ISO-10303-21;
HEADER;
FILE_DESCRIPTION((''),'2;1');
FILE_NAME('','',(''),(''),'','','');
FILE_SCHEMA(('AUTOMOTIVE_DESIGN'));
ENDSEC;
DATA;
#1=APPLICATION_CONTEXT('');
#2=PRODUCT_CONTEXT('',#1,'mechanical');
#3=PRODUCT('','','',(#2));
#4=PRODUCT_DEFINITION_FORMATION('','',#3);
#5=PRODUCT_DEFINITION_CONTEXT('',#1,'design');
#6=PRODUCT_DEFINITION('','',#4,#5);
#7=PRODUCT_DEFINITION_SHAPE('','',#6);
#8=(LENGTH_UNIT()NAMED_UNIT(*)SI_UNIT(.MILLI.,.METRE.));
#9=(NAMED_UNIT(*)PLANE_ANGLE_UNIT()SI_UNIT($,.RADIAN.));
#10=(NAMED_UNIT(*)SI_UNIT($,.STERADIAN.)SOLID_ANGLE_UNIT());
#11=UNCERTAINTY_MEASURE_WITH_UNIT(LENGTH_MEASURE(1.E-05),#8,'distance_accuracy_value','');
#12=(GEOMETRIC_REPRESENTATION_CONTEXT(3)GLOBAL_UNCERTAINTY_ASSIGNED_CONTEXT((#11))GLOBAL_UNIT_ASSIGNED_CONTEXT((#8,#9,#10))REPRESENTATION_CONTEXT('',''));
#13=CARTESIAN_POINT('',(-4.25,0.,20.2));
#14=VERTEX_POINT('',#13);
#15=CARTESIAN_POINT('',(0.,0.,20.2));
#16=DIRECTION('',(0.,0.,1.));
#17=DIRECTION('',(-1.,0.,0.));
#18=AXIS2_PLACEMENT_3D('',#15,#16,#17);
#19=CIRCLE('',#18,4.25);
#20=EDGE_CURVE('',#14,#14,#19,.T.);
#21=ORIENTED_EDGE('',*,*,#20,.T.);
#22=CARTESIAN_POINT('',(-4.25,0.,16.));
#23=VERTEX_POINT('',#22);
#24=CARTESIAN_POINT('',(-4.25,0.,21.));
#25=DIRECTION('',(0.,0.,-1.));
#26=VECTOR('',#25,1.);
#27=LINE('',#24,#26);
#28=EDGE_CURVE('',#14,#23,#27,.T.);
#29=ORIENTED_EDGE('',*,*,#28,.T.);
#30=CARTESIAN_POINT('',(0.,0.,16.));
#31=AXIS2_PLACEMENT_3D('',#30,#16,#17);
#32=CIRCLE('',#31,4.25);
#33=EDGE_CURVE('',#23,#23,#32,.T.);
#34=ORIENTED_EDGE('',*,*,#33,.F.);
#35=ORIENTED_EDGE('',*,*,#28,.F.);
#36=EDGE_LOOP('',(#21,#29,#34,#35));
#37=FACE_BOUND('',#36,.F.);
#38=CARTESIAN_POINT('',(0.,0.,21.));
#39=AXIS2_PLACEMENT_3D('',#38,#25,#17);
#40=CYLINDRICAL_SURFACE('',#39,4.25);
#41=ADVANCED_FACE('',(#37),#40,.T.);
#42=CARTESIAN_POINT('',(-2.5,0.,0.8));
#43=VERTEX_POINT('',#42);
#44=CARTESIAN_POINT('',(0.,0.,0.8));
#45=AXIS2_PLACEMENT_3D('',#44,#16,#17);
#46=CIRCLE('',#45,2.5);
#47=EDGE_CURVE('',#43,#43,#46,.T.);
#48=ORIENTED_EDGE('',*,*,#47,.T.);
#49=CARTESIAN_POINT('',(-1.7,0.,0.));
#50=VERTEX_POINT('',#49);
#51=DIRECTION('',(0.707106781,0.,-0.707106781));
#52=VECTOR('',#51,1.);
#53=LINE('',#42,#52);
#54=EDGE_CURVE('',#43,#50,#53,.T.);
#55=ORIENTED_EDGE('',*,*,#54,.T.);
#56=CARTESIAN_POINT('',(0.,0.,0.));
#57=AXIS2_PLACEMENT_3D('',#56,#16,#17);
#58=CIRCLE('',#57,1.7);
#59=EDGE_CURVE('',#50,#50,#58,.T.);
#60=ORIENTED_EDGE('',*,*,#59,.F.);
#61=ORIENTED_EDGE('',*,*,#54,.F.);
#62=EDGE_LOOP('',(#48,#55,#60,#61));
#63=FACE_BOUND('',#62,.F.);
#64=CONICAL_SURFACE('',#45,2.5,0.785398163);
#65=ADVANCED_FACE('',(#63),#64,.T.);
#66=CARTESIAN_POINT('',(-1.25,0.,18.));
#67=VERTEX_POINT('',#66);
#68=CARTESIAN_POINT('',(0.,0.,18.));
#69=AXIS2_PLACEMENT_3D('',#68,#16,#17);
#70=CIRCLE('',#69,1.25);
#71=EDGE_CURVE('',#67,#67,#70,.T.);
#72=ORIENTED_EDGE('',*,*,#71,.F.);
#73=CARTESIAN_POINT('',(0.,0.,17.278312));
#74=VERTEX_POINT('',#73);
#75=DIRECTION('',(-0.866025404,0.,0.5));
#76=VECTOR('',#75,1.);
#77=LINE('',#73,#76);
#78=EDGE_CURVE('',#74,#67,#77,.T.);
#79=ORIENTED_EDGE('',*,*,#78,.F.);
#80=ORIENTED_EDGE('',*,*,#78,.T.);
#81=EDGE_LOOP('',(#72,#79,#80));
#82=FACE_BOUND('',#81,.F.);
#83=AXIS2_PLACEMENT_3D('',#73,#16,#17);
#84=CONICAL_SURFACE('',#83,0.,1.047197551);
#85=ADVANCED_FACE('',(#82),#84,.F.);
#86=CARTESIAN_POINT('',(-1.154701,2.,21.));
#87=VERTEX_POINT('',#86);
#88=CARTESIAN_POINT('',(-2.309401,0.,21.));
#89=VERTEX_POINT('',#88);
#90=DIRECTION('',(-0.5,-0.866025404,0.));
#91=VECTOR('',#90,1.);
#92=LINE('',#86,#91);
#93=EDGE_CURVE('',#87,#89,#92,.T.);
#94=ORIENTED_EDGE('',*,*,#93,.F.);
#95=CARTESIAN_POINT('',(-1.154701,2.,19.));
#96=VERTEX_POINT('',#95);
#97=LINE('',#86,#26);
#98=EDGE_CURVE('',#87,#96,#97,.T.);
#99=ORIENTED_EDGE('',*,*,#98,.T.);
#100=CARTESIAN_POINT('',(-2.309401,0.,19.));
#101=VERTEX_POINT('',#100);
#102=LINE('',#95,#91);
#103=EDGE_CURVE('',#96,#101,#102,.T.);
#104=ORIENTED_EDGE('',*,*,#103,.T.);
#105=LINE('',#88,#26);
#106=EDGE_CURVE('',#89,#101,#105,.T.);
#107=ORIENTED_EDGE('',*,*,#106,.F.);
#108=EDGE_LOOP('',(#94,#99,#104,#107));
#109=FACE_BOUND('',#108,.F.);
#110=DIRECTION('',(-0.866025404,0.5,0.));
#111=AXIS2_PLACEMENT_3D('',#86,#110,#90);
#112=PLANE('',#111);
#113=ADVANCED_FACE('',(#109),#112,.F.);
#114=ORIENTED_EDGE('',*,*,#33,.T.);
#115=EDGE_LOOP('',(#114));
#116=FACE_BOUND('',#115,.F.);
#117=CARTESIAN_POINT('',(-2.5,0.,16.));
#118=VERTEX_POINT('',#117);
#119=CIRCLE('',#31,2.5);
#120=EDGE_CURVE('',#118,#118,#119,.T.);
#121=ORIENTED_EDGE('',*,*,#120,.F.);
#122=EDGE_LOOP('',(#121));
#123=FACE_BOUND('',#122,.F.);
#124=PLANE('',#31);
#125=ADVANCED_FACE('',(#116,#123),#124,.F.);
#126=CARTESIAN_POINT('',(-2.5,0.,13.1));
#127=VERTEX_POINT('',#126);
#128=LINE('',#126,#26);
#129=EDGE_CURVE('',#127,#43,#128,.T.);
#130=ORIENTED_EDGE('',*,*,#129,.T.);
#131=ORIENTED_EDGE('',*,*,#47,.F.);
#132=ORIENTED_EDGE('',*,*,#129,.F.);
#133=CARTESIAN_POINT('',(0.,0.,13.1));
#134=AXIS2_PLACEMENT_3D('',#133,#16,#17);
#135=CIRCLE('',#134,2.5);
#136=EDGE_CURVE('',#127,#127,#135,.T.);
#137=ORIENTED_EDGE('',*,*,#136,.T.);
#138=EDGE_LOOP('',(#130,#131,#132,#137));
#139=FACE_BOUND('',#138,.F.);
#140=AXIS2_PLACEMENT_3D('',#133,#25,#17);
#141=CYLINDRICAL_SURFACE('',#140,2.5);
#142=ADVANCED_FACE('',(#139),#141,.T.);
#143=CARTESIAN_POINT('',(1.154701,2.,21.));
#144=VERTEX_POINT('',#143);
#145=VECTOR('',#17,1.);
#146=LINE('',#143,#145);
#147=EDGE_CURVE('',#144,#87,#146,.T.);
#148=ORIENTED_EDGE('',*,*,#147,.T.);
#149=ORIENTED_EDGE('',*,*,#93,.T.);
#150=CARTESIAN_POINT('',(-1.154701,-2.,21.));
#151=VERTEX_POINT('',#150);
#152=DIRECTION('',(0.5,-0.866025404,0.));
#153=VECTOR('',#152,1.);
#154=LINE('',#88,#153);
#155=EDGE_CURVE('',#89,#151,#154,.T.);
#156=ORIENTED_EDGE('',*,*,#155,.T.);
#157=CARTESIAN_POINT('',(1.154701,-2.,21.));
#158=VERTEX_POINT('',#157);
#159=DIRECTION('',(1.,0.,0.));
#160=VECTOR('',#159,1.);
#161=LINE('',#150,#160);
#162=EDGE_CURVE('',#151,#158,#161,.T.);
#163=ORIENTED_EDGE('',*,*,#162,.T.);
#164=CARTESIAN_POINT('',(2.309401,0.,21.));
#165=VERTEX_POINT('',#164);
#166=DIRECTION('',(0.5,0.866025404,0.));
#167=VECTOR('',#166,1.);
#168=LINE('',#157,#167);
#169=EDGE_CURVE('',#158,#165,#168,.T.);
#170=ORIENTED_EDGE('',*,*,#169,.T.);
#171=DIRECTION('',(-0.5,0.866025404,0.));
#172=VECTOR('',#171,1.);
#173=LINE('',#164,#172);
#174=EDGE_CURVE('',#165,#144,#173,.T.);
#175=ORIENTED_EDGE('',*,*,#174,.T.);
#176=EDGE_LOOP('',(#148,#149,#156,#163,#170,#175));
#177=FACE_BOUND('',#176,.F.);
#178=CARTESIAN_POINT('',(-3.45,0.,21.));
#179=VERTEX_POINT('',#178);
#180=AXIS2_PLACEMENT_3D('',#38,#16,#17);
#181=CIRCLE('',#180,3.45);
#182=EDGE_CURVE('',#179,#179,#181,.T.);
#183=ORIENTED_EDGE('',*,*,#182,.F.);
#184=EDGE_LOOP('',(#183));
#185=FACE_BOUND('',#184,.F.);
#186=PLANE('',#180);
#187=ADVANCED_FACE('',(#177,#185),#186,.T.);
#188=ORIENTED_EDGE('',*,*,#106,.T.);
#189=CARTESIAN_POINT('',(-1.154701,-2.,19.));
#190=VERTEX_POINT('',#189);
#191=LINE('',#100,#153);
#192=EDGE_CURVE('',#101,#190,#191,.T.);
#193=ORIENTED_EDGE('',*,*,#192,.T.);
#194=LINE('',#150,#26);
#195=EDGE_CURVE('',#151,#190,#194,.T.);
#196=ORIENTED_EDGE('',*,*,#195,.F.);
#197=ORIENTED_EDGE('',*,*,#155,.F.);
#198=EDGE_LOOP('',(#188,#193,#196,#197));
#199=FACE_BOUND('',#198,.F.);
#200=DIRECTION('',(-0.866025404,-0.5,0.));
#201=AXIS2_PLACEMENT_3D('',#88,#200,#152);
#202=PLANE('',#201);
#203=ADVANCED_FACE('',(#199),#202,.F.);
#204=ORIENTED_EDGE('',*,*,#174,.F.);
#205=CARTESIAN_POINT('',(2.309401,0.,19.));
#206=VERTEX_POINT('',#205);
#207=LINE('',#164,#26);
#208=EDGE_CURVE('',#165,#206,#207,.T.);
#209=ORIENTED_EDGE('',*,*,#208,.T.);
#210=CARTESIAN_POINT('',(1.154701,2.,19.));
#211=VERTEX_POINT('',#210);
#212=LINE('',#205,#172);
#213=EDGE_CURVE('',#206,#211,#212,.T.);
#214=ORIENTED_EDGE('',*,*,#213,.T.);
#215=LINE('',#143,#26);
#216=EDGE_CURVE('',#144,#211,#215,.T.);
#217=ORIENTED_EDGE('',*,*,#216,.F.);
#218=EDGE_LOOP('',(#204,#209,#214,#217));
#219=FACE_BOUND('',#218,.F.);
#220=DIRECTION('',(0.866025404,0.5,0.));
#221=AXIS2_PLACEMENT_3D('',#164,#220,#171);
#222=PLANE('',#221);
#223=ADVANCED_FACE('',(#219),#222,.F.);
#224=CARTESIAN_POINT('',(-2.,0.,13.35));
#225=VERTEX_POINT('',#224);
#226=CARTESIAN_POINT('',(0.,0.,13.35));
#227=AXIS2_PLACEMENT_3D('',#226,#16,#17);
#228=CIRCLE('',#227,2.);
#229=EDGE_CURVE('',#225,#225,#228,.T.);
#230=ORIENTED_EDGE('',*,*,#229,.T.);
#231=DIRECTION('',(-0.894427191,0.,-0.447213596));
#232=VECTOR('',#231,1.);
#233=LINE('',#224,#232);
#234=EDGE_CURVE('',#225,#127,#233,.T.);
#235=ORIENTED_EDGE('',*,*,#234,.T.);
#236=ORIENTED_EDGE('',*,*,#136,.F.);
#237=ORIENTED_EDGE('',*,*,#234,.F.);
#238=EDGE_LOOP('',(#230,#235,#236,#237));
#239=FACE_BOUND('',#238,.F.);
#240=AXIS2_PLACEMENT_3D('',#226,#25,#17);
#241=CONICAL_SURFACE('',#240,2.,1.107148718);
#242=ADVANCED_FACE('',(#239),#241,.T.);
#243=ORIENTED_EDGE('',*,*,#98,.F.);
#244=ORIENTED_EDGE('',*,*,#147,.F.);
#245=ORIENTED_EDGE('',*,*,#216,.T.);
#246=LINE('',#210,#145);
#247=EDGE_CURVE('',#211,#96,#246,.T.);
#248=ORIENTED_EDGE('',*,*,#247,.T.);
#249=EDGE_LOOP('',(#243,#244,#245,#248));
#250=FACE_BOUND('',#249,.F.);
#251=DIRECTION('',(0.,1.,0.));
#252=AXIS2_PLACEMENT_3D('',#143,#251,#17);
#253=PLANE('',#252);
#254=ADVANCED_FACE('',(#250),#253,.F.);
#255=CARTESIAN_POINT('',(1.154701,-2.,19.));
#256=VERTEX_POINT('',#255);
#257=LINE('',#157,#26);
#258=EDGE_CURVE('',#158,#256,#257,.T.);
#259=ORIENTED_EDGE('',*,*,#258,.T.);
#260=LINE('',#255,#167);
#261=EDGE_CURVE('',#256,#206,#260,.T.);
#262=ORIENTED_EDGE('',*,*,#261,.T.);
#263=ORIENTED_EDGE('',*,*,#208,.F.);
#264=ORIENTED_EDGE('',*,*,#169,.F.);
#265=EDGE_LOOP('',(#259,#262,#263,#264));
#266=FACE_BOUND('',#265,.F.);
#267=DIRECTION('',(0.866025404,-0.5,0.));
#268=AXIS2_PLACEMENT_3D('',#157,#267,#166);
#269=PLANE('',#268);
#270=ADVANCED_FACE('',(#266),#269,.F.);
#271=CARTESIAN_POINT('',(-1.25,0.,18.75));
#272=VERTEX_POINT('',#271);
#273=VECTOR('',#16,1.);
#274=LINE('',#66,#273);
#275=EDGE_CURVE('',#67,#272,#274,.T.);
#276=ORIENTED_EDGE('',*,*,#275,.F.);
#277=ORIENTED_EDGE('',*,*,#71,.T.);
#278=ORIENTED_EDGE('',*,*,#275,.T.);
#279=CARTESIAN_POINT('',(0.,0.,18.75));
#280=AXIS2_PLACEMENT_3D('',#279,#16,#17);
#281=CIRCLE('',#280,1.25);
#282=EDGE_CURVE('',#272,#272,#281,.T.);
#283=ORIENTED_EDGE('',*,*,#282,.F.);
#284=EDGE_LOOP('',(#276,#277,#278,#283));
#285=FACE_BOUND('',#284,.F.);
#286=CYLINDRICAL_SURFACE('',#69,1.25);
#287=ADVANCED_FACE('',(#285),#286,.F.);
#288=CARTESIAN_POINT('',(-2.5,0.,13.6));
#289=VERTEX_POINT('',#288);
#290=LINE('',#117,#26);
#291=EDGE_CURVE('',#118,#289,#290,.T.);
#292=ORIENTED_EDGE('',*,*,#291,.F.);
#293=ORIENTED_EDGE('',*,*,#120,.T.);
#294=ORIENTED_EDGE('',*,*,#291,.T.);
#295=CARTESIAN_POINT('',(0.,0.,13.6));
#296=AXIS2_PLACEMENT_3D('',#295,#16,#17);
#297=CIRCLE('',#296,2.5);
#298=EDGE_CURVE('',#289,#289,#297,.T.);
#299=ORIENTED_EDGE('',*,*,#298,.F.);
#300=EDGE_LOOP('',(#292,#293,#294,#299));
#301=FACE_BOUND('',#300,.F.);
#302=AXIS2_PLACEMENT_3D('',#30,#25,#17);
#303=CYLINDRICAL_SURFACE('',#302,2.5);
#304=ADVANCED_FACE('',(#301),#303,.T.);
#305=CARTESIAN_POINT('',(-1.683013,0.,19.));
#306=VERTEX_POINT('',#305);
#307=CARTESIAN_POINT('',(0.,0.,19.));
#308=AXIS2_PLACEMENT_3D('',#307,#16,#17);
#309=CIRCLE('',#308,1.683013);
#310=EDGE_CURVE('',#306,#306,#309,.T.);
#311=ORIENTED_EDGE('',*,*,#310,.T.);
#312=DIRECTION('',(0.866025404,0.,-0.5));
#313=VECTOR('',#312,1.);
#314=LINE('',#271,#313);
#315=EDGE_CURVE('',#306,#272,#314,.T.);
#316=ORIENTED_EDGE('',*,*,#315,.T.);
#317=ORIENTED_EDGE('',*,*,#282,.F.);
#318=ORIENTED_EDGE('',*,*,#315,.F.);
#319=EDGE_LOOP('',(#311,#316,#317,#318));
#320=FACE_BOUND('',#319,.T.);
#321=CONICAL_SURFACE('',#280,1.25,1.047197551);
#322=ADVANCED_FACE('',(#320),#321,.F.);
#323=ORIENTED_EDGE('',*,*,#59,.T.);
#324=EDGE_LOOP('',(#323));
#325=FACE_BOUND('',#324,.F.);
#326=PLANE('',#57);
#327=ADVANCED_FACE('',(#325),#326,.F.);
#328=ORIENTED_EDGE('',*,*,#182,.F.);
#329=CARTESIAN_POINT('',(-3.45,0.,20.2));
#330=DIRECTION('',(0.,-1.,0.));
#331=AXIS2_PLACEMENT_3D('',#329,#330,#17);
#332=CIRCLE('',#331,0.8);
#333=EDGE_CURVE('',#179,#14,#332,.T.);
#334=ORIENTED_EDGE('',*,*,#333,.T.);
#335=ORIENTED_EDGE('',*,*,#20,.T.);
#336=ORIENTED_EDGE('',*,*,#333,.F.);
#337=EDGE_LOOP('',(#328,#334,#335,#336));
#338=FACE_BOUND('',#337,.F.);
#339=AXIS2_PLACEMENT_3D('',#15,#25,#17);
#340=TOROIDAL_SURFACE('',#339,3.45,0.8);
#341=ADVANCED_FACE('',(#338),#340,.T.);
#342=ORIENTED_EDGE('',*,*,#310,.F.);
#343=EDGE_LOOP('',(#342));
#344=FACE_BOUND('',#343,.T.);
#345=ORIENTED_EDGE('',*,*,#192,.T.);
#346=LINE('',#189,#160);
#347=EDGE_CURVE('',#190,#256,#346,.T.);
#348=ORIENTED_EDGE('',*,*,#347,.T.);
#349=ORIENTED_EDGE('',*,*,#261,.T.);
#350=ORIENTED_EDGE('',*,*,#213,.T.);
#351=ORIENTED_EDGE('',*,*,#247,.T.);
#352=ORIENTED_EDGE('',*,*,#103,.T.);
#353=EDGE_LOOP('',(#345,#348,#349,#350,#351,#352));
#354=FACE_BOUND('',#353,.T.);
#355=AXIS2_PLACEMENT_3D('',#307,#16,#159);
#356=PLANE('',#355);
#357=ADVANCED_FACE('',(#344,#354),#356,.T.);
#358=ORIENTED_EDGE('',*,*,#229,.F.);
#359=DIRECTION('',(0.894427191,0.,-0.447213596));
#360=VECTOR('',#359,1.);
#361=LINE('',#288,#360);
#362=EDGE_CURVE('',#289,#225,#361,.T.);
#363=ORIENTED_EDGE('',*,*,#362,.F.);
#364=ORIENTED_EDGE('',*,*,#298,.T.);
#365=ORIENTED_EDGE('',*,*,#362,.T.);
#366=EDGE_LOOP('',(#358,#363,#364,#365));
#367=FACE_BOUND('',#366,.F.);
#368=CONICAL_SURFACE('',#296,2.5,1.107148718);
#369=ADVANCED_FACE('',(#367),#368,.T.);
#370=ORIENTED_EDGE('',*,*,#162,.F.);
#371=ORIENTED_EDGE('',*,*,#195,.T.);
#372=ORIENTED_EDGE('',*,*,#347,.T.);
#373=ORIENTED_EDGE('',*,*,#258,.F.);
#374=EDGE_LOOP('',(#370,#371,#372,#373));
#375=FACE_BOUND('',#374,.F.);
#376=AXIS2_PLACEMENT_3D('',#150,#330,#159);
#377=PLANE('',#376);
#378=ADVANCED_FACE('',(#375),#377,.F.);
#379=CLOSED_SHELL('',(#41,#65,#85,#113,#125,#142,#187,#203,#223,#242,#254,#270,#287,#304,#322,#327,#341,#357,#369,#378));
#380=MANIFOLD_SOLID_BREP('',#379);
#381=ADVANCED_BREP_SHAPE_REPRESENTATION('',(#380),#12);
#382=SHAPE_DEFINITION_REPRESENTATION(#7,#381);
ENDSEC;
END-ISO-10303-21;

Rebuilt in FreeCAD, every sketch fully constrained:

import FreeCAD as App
import Part
import Sketcher
from FreeCAD import Vector
Q = App.Units.Quantity


def edges_at(feature, points):
    """Names of the edges that pass closest to the given points."""
    edges = feature.Shape.Edges
    near = lambda p: min(range(len(edges)), key=lambda i: edges[i].distToShape(Part.Vertex(*p))[0])
    return sorted({f"Edge{near(p) + 1}" for p in points})

doc = App.newDocument("Part")
body = doc.addObject("PartDesign::Body", "Body")

sketch1 = body.newObject("Sketcher::SketchObject", "Sketch")
sketch1.AttachmentSupport = (doc.getObject("XZ_Plane"), [""])
sketch1.MapMode = "FlatFace"
sketch1.addGeometry([
    Part.LineSegment(Vector(-2.5, 0, 0), Vector(0, 0, 0)),
    Part.LineSegment(Vector(0, 0, 0), Vector(0, 17.278312, 0)),
    Part.LineSegment(Vector(0, 17.278312, 0), Vector(-1.25, 18, 0)),
    Part.LineSegment(Vector(-1.25, 18, 0), Vector(-1.25, 21, 0)),
    Part.LineSegment(Vector(-1.25, 21, 0), Vector(-4.25, 21, 0)),
    Part.LineSegment(Vector(-4.25, 21, 0), Vector(-4.25, 16, 0)),
    Part.LineSegment(Vector(-4.25, 16, 0), Vector(-2.5, 16, 0)),
    Part.LineSegment(Vector(-2.5, 16, 0), Vector(-2.5, 13.6, 0)),
    Part.LineSegment(Vector(-2.5, 13.6, 0), Vector(-2, 13.35, 0)),
    Part.LineSegment(Vector(-2, 13.35, 0), Vector(-2.5, 13.1, 0)),
    Part.LineSegment(Vector(-2.5, 13.1, 0), Vector(-2.5, 0, 0)),
], False)
sketch1.addConstraint([
    Sketcher.Constraint("Coincident", 0, 2, 1, 1),
    Sketcher.Constraint("Coincident", 1, 2, 2, 1),
    Sketcher.Constraint("Coincident", 2, 2, 3, 1),
    Sketcher.Constraint("Coincident", 3, 2, 4, 1),
    Sketcher.Constraint("Coincident", 4, 2, 5, 1),
    Sketcher.Constraint("Coincident", 5, 2, 6, 1),
    Sketcher.Constraint("Coincident", 6, 2, 7, 1),
    Sketcher.Constraint("Coincident", 7, 2, 8, 1),
    Sketcher.Constraint("Coincident", 8, 2, 9, 1),
    Sketcher.Constraint("Coincident", 9, 2, 10, 1),
    Sketcher.Constraint("Coincident", 10, 2, 0, 1),
    Sketcher.Constraint("Horizontal", 0),
    Sketcher.Constraint("Vertical", 1),
    Sketcher.Constraint("Vertical", 3),
    Sketcher.Constraint("Horizontal", 4),
    Sketcher.Constraint("Vertical", 5),
    Sketcher.Constraint("Horizontal", 6),
    Sketcher.Constraint("Vertical", 7),
    Sketcher.Constraint("Vertical", 10),
    Sketcher.Constraint("Coincident", 0, 2, -1, 1),
    Sketcher.Constraint("Vertical", 7, 2, 9, 2),
    Sketcher.Constraint("Equal", 4, 3),
    Sketcher.Constraint("Equal", 8, 9),
    Sketcher.Constraint("DistanceX", 4, 2, 4, 1, Q("3 mm")),
    Sketcher.Constraint("DistanceY", 5, 2, 5, 1, Q("5 mm")),
    Sketcher.Constraint("Angle", 2, Q("150 deg")),
    Sketcher.Constraint("DistanceX", 0, 1, 0, 2, Q("2.5 mm")),
    Sketcher.Constraint("DistanceY", 7, 2, 7, 1, Q("2.4 mm")),
    Sketcher.Constraint("DistanceY", 10, 2, 10, 1, Q("13.1 mm")),
    Sketcher.Constraint("DistanceY", -1, 1, 2, 2, Q("18 mm")),
    Sketcher.Constraint("DistanceX", 8, 2, -1, 1, Q("2 mm")),
    Sketcher.Constraint("DistanceX", 6, 1, 6, 2, Q("1.75 mm")),
])
revolution = body.newObject("PartDesign::Revolution", "Revolution")
revolution.Profile = sketch1
revolution.ReferenceAxis = (sketch1, ["V_Axis"])
revolution.Angle = 360
doc.recompute()

fillet = body.newObject("PartDesign::Fillet", "Fillet")
fillet.Base = (revolution, edges_at(revolution, [(4.25, 0, 21)]))
fillet.Radius = 0.8
doc.recompute()

chamfer = body.newObject("PartDesign::Chamfer", "Chamfer")
chamfer.Base = (fillet, edges_at(fillet, [(2.5, 0, 0)]))
chamfer.Size = 0.8

sketch2 = body.newObject("Sketcher::SketchObject", "Sketch001")
sketch2.AttachmentSupport = (doc.getObject("XY_Plane"), [""])
sketch2.MapMode = "FlatFace"
sketch2.AttachmentOffset = App.Placement(Vector(0, 0, 21), App.Rotation())
sketch2.addGeometry([
    Part.LineSegment(Vector(-1.154701, -2, 0), Vector(1.154701, -2, 0)),
    Part.LineSegment(Vector(1.154701, -2, 0), Vector(2.309401, 0, 0)),
    Part.LineSegment(Vector(2.309401, 0, 0), Vector(1.154701, 2, 0)),
    Part.LineSegment(Vector(1.154701, 2, 0), Vector(-1.154701, 2, 0)),
    Part.LineSegment(Vector(-1.154701, 2, 0), Vector(-2.309401, 0, 0)),
    Part.LineSegment(Vector(-2.309401, 0, 0), Vector(-1.154701, -2, 0)),
], False)
sketch2.addConstraint([
    Sketcher.Constraint("Coincident", 0, 2, 1, 1),
    Sketcher.Constraint("Coincident", 1, 2, 2, 1),
    Sketcher.Constraint("Coincident", 2, 2, 3, 1),
    Sketcher.Constraint("Coincident", 3, 2, 4, 1),
    Sketcher.Constraint("Coincident", 4, 2, 5, 1),
    Sketcher.Constraint("Coincident", 5, 2, 0, 1),
    Sketcher.Constraint("Horizontal", 0),
    Sketcher.Constraint("Horizontal", 3),
    Sketcher.Constraint("Symmetric", 0, 2, 3, 2, -1, 1),
    Sketcher.Constraint("Symmetric", 1, 2, 4, 2, -1, 1),
    Sketcher.Constraint("PointOnObject", 1, 2, -1),
    Sketcher.Constraint("Parallel", 2, 5),
    Sketcher.Constraint("Vertical", 0, 2, 2, 2),
    Sketcher.Constraint("Angle", 1, Q("60 deg")),
    Sketcher.Constraint("DistanceY", 0, 2, -1, 1, Q("2 mm")),
    Sketcher.Constraint("DistanceX", 0, 1, 0, 2, Q("2.309401 mm")),
])
pocket1 = body.newObject("PartDesign::Pocket", "Pocket")
pocket1.Profile = sketch2
pocket1.Length = 2
doc.recompute()

chamfer2 = body.newObject("PartDesign::Chamfer", "Chamfer001")
chamfer2.Base = (pocket1, edges_at(pocket1, [(1.25, 0, 19)]))
chamfer2.ChamferType = "Two distances"
chamfer2.Size = 0.433013
chamfer2.Size2 = 0.25

doc.recompute()
